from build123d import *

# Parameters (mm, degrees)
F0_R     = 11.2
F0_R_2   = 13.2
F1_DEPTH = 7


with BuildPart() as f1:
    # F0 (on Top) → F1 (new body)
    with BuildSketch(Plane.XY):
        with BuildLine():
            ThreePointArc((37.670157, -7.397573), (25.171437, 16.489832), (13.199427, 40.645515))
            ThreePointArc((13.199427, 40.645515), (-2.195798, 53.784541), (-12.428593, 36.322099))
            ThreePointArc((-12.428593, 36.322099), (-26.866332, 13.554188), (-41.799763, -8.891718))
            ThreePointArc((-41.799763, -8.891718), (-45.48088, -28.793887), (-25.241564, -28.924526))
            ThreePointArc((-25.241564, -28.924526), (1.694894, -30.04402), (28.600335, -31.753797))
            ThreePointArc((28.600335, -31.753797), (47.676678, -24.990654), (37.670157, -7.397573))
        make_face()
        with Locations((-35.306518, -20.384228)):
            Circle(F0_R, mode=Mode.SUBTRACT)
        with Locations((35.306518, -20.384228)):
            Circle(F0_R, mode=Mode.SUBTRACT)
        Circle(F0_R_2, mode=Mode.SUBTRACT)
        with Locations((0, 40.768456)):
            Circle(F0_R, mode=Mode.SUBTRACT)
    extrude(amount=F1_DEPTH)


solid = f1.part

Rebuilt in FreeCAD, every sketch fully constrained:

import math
import FreeCAD as App
import Part
import Sketcher

V = App.Vector
Q = App.Units.Quantity

doc = App.newDocument("Part")
body = doc.addObject("PartDesign::Body", "Body")

sketch1 = doc.addObject("Sketcher::SketchObject", "Sketch")
body.addObject(sketch1)
sketch1.AttachmentSupport = (doc.XY_Plane, [""])
sketch1.MapMode = "FlatFace"
sketch1.addGeometry(Part.ArcOfCircle(Part.Circle(V(1121, 575, 0), V(0, 0, 1), 1230), math.radians(-154.26), math.radians(-151.75)), False)
sketch1.addGeometry(Part.ArcOfCircle(Part.Circle(V(0, 41, 0), V(0, 0, 1), 13), math.radians(-1), math.radians(200)), False)
sketch1.addGeometry(Part.ArcOfCircle(Part.Circle(V(-1058, 683, 0), V(0, 0, 1), 1230), math.radians(-34.26), math.radians(-31.75)), False)
sketch1.addGeometry(Part.ArcOfCircle(Part.Circle(V(-35, -20, 0), V(0, 0, 1), 13), math.radians(119), math.radians(320)), False)
sketch1.addGeometry(Part.ArcOfCircle(Part.Circle(V(-63, -1258, 0), V(0, 0, 1), 1230), math.radians(85.74), math.radians(88.25)), False)
sketch1.addGeometry(Part.ArcOfCircle(Part.Circle(V(35, -20, 0), V(0, 0, 1), 13), math.radians(-121), math.radians(80)), False)
sketch1.addGeometry(Part.Circle(V(-35, -20, 0), V(0, 0, 1), 11), False)
sketch1.addGeometry(Part.Circle(V(35, -20, 0), V(0, 0, 1), 11), False)
sketch1.addGeometry(Part.Circle(V(0, 0, 0), V(0, 0, 1), 13), False)
sketch1.addGeometry(Part.Circle(V(0, 41, 0), V(0, 0, 1), 11), False)
sketch1.addConstraint(Sketcher.Constraint("Coincident", 0, 1, 1, 1))
sketch1.addConstraint(Sketcher.Constraint("Coincident", 1, 2, 2, 2))
sketch1.addConstraint(Sketcher.Constraint("Coincident", 2, 1, 3, 1))
sketch1.addConstraint(Sketcher.Constraint("Coincident", 3, 2, 4, 2))
sketch1.addConstraint(Sketcher.Constraint("Coincident", 4, 1, 5, 1))
sketch1.addConstraint(Sketcher.Constraint("Coincident", 5, 2, 0, 2))
sketch1.addConstraint(Sketcher.Constraint("Coincident", 8, 3, -1, 1))
sketch1.addConstraint(Sketcher.Constraint("Coincident", 6, 3, 3, 3))
sketch1.addConstraint(Sketcher.Constraint("Coincident", 7, 3, 5, 3))
sketch1.addConstraint(Sketcher.Constraint("Coincident", 9, 3, 1, 3))
sketch1.addConstraint(Sketcher.Constraint("Equal", 1, 3))
sketch1.addConstraint(Sketcher.Constraint("Equal", 3, 5))
sketch1.addConstraint(Sketcher.Constraint("Equal", 6, 7))
sketch1.addConstraint(Sketcher.Constraint("Equal", 5, 8))
sketch1.addConstraint(Sketcher.Constraint("Equal", 7, 9))
sketch1.addConstraint(Sketcher.Constraint("Symmetric", 3, 3, 5, 3, -2))
sketch1.addConstraint(Sketcher.Constraint("PointOnObject", 1, 3, -2))
sketch1.addConstraint(Sketcher.Constraint("Diameter", 6, Q("22.4 mm")))
sketch1.addConstraint(Sketcher.Constraint("Diameter", 8, Q("26.4 mm")))
sketch1.addConstraint(Sketcher.Constraint("Radius", 0, Q("1229.620861 mm")))
sketch1.addConstraint(Sketcher.Constraint("Radius", 2, Q("1229.618604 mm")))
sketch1.addConstraint(Sketcher.Constraint("Radius", 4, Q("1229.621597 mm")))
sketch1.addConstraint(Sketcher.Constraint("DistanceY", -1, 1, 1, 2, Q("36.322099 mm")))
sketch1.addConstraint(Sketcher.Constraint("DistanceY", 3, 2, 3, 3, Q("8.540298 mm")))
sketch1.addConstraint(Sketcher.Constraint("DistanceX", 2, 3, -1, 1, Q("1058.017771 mm")))
sketch1.addConstraint(Sketcher.Constraint("DistanceX", 3, 3, -1, 1, Q("35.306518 mm")))
sketch1.addConstraint(Sketcher.Constraint("DistanceX", 4, 3, -1, 1, Q("62.829938 mm")))
sketch1.addConstraint(Sketcher.Constraint("DistanceY", 4, 3, -1, 1, Q("1257.971468 mm")))
sketch1.addConstraint(Sketcher.Constraint("DistanceY", 1, 3, 0, 3, Q("533.804639 mm")))
sketch1.addConstraint(Sketcher.Constraint("DistanceY", 0, 3, 2, 3, Q("108.823328 mm")))
sketch1.addConstraint(Sketcher.Constraint("DistanceX", 3, 3, 0, 3, Q("1156.156071 mm")))
pad1 = doc.addObject("PartDesign::Pad", "Pad")
body.addObject(pad1)
pad1.Profile = sketch1
pad1.Length = 7

doc.recompute()
